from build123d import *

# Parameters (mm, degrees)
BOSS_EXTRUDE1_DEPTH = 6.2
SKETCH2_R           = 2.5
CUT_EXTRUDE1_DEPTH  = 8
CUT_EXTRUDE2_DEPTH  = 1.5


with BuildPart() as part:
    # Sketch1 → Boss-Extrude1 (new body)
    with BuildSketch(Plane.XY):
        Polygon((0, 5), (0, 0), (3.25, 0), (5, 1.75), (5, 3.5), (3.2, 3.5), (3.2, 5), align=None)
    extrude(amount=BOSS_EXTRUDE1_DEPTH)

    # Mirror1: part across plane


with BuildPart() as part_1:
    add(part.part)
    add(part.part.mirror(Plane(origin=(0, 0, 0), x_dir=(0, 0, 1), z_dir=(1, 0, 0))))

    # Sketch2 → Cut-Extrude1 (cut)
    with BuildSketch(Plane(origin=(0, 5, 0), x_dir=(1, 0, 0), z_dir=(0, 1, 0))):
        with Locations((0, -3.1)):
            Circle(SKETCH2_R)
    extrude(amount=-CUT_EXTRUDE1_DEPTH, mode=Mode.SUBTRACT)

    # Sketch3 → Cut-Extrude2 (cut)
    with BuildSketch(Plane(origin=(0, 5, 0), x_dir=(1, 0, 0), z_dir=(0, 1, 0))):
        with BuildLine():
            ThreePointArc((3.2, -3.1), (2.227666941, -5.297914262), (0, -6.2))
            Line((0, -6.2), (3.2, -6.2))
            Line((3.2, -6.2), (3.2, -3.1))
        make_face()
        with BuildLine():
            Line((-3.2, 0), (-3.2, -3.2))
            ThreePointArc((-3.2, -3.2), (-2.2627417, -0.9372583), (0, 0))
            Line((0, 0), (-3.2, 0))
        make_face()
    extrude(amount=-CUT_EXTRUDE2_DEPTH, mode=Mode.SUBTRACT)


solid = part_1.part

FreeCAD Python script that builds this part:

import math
import FreeCAD as App
import Part
import Sketcher

V = App.Vector
Q = App.Units.Quantity


def add_polygon(sketch, points):
    """Adds a closed chain of lines whose ends are joined by coincident constraints."""
    first, n = sketch.GeometryCount, len(points)
    for a, b in zip(points, points[1:] + points[:1]):
        sketch.addGeometry(Part.LineSegment(App.Vector(*a, 0), App.Vector(*b, 0)), False)
    for i in range(n):
        sketch.addConstraint(Sketcher.Constraint("Coincident", first + i, 2, first + (i + 1) % n, 1))

doc = App.newDocument("Part")
params = doc.addObject("Spreadsheet::Sheet", "Params")
for row, (alias, value) in enumerate([
    ("sketch1_height", "5 mm"),
    ("sketch1_width", "1.8 mm"),
    ("sketch1_width2", "3.2 mm"),
    ("sketch1_height2", "1.5 mm"),
    ("sketch1_width3", "3.25 mm"),
    ("pad1_length", "6.2 mm"),
    ("sketch2_diameter", "5 mm"),
    ("pocket1_length", "8 mm"),
    ("sketch3_radius", "3.2 mm"),
    ("sketch3_height", "3.1 mm"),
    ("pocket2_length", "1.5 mm"),
], start=1):
    params.set(f"A{row}", alias)
    params.set(f"B{row}", "=" + value)
    params.setAlias(f"B{row}", alias)

body = doc.addObject("PartDesign::Body", "Body")

sketch1 = body.newObject("Sketcher::SketchObject", "Sketch")
sketch1.AttachmentSupport = (doc.getObject("XY_Plane"), [""])
sketch1.MapMode = "FlatFace"
add_polygon(sketch1, [(0, 5), (0, 0), (3.2, 0), (5, 1.8), (5, 3.5), (3.2, 3.5), (3.2, 5)])
sketch1.addConstraint(Sketcher.Constraint("Vertical", 0))
sketch1.addConstraint(Sketcher.Constraint("Horizontal", 1))
sketch1.addConstraint(Sketcher.Constraint("Vertical", 3))
sketch1.addConstraint(Sketcher.Constraint("Horizontal", 4))
sketch1.addConstraint(Sketcher.Constraint("Vertical", 5))
sketch1.addConstraint(Sketcher.Constraint("Horizontal", 6))
sketch1.addConstraint(Sketcher.Constraint("Coincident", 0, 2, -1, 1))
sketch1.addConstraint(Sketcher.Constraint("DistanceY", 0, 2, 0, 1, 5.0))
sketch1.addConstraint(Sketcher.Constraint("Angle", 2, Q("45 deg")))
sketch1.addConstraint(Sketcher.Constraint("DistanceX", 4, 2, 4, 1, 1.8))
sketch1.addConstraint(Sketcher.Constraint("DistanceX", 6, 2, 6, 1, 3.2))
sketch1.addConstraint(Sketcher.Constraint("DistanceY", 5, 1, 5, 2, 1.5))
sketch1.addConstraint(Sketcher.Constraint("DistanceX", 1, 1, 1, 2, 3.25))
sketch1.setExpression("Constraints[14]", "Params.sketch1_height")
sketch1.setExpression("Constraints[16]", "Params.sketch1_width")
sketch1.setExpression("Constraints[17]", "Params.sketch1_width2")
sketch1.setExpression("Constraints[18]", "Params.sketch1_height2")
sketch1.setExpression("Constraints[19]", "Params.sketch1_width3")
pad1 = body.newObject("PartDesign::Pad", "Pad")
pad1.Profile = sketch1
pad1.setExpression("Length", "Params.pad1_length")
body2 = doc.addObject("PartDesign::Body", "Body001")
doc.recompute()

body2.BaseFeature = body
doc.recompute()

mirroring = doc.addObject("Part::Mirroring", "Mirroring")
mirroring.Source = body
mirroring.Base = V(0, 0, 0)
mirroring.Normal = V(1, 0, 0)
body3 = doc.addObject("PartDesign::Body", "Body002")
body3.BaseFeature = mirroring
boolean = body2.newObject("PartDesign::Boolean", "Boolean")
boolean.Type = "Fuse"
boolean.addObjects([body3])
doc.recompute()

sketch2 = body2.newObject("Sketcher::SketchObject", "Sketch001")
sketch2.AttachmentSupport = (doc.getObject("XZ_Plane001"), [""])
sketch2.MapMode = "FlatFace"
sketch2.AttachmentOffset = App.Placement(V(0, 0, -5), App.Rotation())
sketch2.addGeometry(Part.Circle(V(0, 3.1, 0), V(0, 0, 1), 2.5), False)
sketch2.addConstraint(Sketcher.Constraint("PointOnObject", 0, 3, -2))
sketch2.addConstraint(Sketcher.Constraint("Diameter", 0, 5.0))
sketch2.addConstraint(Sketcher.Constraint("DistanceY", -1, 1, 0, 3, 3.1))
sketch2.setExpression("Constraints[1]", "Params.sketch2_diameter")
pocket1 = body2.newObject("PartDesign::Pocket", "Pocket")
pocket1.Profile = sketch2
pocket1.setExpression("Length", "Params.pocket1_length")
pocket1.Reversed = True

sketch3 = body2.newObject("Sketcher::SketchObject", "Sketch002")
sketch3.AttachmentSupport = (doc.getObject("XZ_Plane001"), [""])
sketch3.MapMode = "FlatFace"
sketch3.AttachmentOffset = App.Placement(V(0, 0, -5), App.Rotation())
sketch3.addGeometry(Part.ArcOfCircle(Part.Circle(V(0, 3, 0), V(0, 0, 1), 3.2), math.radians(2), math.radians(90)), False)
sketch3.addGeometry(Part.LineSegment(V(0, 6.2, 0), V(3.2, 6.2, 0)), False)
sketch3.addGeometry(Part.LineSegment(V(3.2, 6.2, 0), V(3.2, 3.1, 0)), False)
sketch3.addGeometry(Part.LineSegment(V(-3.2, 0, 0), V(-3.2, 3.2, 0)), False)
sketch3.addGeometry(Part.ArcOfCircle(Part.Circle(V(0, 3.2, 0), V(0, 0, 1), 3.2), math.radians(180), math.radians(270)), False)
sketch3.addGeometry(Part.LineSegment(V(0, 0, 0), V(-3.2, 0, 0)), False)
sketch3.addConstraint(Sketcher.Constraint("Tangent", 0, 2, 1, 1))
sketch3.addConstraint(Sketcher.Constraint("Coincident", 1, 2, 2, 1))
sketch3.addConstraint(Sketcher.Constraint("Coincident", 2, 2, 0, 1))
sketch3.addConstraint(Sketcher.Constraint("Tangent", 3, 2, 4, 1))
sketch3.addConstraint(Sketcher.Constraint("Tangent", 4, 2, 5, 1))
sketch3.addConstraint(Sketcher.Constraint("Coincident", 5, 2, 3, 1))
sketch3.addConstraint(Sketcher.Constraint("Horizontal", 1))
sketch3.addConstraint(Sketcher.Constraint("Vertical", 2))
sketch3.addConstraint(Sketcher.Constraint("Vertical", 3))
sketch3.addConstraint(Sketcher.Constraint("Horizontal", 5))
sketch3.addConstraint(Sketcher.Constraint("Coincident", 4, 2, -1, 1))
sketch3.addConstraint(Sketcher.Constraint("PointOnObject", 0, 3, -2))
sketch3.addConstraint(Sketcher.Constraint("Equal", 1, 5))
sketch3.addConstraint(Sketcher.Constraint("Radius", 4, 3.2))
sketch3.addConstraint(Sketcher.Constraint("DistanceY", 2, 2, 2, 1, 3.1))
sketch3.addConstraint(Sketcher.Constraint("DistanceY", 4, 3, 0, 2, 3.0))
sketch3.setExpression("Constraints[13]", "Params.sketch3_radius")
sketch3.setExpression("Constraints[14]", "Params.sketch3_height")
pocket2 = body2.newObject("PartDesign::Pocket", "Pocket001")
pocket2.Profile = sketch3
pocket2.setExpression("Length", "Params.pocket2_length")
pocket2.Reversed = True
mirroring.Visibility = False

doc.recompute()
